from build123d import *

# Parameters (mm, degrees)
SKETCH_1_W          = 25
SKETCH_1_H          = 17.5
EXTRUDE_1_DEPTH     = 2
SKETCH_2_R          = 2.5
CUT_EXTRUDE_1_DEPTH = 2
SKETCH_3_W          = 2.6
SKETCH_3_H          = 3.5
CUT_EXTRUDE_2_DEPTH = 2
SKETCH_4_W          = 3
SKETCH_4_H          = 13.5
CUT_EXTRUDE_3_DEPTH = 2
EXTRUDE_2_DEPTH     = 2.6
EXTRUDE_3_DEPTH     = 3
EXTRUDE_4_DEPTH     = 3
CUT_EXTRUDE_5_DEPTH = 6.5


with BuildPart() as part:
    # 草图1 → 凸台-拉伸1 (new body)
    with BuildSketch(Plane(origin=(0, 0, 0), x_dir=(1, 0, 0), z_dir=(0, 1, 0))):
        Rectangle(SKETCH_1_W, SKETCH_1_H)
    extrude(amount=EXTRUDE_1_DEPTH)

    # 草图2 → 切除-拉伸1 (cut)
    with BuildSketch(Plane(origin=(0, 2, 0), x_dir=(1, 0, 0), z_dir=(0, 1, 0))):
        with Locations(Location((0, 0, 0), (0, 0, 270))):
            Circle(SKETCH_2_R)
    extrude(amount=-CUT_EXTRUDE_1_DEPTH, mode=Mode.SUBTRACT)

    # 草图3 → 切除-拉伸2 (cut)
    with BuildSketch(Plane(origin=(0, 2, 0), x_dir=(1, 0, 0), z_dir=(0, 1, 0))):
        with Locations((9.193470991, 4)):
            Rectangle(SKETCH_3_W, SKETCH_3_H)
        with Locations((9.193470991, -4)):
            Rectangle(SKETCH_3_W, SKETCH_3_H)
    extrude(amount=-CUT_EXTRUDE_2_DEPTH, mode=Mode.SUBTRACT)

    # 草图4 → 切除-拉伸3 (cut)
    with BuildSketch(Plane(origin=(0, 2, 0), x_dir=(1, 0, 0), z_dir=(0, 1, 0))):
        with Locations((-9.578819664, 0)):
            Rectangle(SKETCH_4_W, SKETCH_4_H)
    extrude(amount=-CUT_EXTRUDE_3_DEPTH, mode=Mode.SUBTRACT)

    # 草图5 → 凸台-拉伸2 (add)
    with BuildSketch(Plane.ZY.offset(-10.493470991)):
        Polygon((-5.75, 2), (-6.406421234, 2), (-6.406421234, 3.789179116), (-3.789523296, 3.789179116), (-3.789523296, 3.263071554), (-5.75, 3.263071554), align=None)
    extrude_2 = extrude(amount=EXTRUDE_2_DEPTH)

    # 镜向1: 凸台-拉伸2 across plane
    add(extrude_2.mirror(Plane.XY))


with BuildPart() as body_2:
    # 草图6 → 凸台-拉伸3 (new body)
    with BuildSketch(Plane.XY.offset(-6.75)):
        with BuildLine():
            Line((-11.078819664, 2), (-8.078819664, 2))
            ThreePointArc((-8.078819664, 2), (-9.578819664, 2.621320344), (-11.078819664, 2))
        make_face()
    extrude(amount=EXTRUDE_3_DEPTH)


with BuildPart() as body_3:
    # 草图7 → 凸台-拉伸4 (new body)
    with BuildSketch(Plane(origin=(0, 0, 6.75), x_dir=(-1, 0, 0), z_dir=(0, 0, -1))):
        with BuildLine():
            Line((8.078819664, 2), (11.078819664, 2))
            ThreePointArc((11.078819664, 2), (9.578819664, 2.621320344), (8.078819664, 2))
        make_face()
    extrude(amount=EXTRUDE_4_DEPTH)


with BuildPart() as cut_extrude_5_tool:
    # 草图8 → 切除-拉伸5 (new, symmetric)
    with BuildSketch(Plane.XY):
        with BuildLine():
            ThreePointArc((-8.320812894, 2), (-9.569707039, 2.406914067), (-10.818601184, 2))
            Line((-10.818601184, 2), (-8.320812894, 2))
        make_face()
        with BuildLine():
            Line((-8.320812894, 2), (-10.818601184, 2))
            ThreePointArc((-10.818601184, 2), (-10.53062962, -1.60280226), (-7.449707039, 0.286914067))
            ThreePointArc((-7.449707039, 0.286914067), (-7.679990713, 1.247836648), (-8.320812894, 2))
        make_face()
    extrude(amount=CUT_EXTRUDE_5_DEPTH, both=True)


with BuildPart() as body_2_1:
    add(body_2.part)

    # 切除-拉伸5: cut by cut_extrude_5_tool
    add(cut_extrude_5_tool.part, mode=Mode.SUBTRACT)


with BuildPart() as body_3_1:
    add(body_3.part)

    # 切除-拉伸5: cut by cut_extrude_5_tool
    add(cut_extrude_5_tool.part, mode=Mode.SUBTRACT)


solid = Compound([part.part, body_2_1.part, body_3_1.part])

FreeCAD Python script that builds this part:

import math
import FreeCAD as App
import Part
import Sketcher

V = App.Vector


def add_polygon(sketch, points):
    """Adds a closed chain of lines whose ends are joined by coincident constraints."""
    first, n = sketch.GeometryCount, len(points)
    for a, b in zip(points, points[1:] + points[:1]):
        sketch.addGeometry(Part.LineSegment(App.Vector(*a, 0), App.Vector(*b, 0)), False)
    for i in range(n):
        sketch.addConstraint(Sketcher.Constraint("Coincident", first + i, 2, first + (i + 1) % n, 1))

doc = App.newDocument("Part")
body = doc.addObject("PartDesign::Body", "Body")

# Sketch on XZ plane
sketch1 = body.newObject("Sketcher::SketchObject", "Sketch")
sketch1.AttachmentSupport = (doc.getObject("XZ_Plane"), [""])
sketch1.MapMode = "FlatFace"
add_polygon(sketch1, [(-12, -9), (-12, 9), (12, 9), (12, -9)])  # lines 0-3
sketch1.addConstraint([
    Sketcher.Constraint("Vertical", 0),
    Sketcher.Constraint("Horizontal", 1),
    Sketcher.Constraint("Vertical", 2),
    Sketcher.Constraint("Horizontal", 3),
    Sketcher.Constraint("Symmetric", 0, 2, 2, 2, -1, 1),
    Sketcher.Constraint("DistanceX", 1, 1, 1, 2, 25.0),
    Sketcher.Constraint("DistanceY", 0, 1, 0, 2, 17.5),
])
pad1 = body.newObject("PartDesign::Pad", "Pad")
pad1.Profile = sketch1
pad1.Length = 2
pad1.Reversed = True

# Sketch on XZ plane
sketch2 = body.newObject("Sketcher::SketchObject", "Sketch001")
sketch2.AttachmentSupport = (doc.getObject("XZ_Plane"), [""])
sketch2.MapMode = "FlatFace"
sketch2.AttachmentOffset = App.Placement(V(0, 0, -2), App.Rotation())
sketch2.addGeometry(Part.Circle(V(0, 0, 0), V(0, 0, 1), 2.5), False)
sketch2.addConstraint([
    Sketcher.Constraint("Coincident", 0, 3, -1, 1),
    Sketcher.Constraint("Diameter", 0, 5.0),
])
pocket1 = body.newObject("PartDesign::Pocket", "Pocket")
pocket1.Profile = sketch2
pocket1.Length = 2
pocket1.Reversed = True

# Sketch on XZ plane
sketch3 = body.newObject("Sketcher::SketchObject", "Sketch002")
sketch3.AttachmentSupport = (doc.getObject("XZ_Plane"), [""])
sketch3.MapMode = "FlatFace"
sketch3.AttachmentOffset = App.Placement(V(0, 0, -2), App.Rotation())
add_polygon(sketch3, [(7.9, -5.8), (7.9, -2.2), (10.5, -2.2), (10.5, -5.8)])  # lines 0-3
add_polygon(sketch3, [(7.9, 2.2), (7.9, 5.8), (10.5, 5.8), (10.5, 2.2)])  # lines 4-7
sketch3.addConstraint([
    Sketcher.Constraint("Vertical", 0),
    Sketcher.Constraint("Horizontal", 1),
    Sketcher.Constraint("Vertical", 2),
    Sketcher.Constraint("Horizontal", 3),
    Sketcher.Constraint("Vertical", 4),
    Sketcher.Constraint("Horizontal", 5),
    Sketcher.Constraint("Vertical", 6),
    Sketcher.Constraint("Horizontal", 7),
    Sketcher.Constraint("Symmetric", 3, 2, 4, 2, -1),
    Sketcher.Constraint("Symmetric", 1, 2, 6, 2, -1),
    Sketcher.Constraint("DistanceX", 1, 1, 1, 2, 2.6),
    Sketcher.Constraint("DistanceY", 0, 1, 0, 2, 3.5),
    Sketcher.Constraint("DistanceY", 0, 2, 4, 2, 8.0),
    Sketcher.Constraint("DistanceX", -1, 1, 0, 2, 7.893471),
])
pocket2 = body.newObject("PartDesign::Pocket", "Pocket001")
pocket2.Profile = sketch3
pocket2.Length = 2
pocket2.Reversed = True

# Sketch on XZ plane
sketch4 = body.newObject("Sketcher::SketchObject", "Sketch003")
sketch4.AttachmentSupport = (doc.getObject("XZ_Plane"), [""])
sketch4.MapMode = "FlatFace"
sketch4.AttachmentOffset = App.Placement(V(0, 0, -2), App.Rotation())
add_polygon(sketch4, [(-11.1, -6.8), (-11.1, 6.8), (-8.1, 6.8), (-8.1, -6.8)])  # lines 0-3
sketch4.addConstraint([
    Sketcher.Constraint("Vertical", 0),
    Sketcher.Constraint("Horizontal", 1),
    Sketcher.Constraint("Vertical", 2),
    Sketcher.Constraint("Horizontal", 3),
    Sketcher.Constraint("DistanceX", 1, 1, 1, 2, 3.0),
    Sketcher.Constraint("DistanceY", 0, 1, 0, 2, 13.5),
    Sketcher.Constraint("DistanceY", -1, 1, 0, 2, 6.75),
    Sketcher.Constraint("DistanceX", 0, 2, -1, 1, 11.07882),
])
pocket3 = body.newObject("PartDesign::Pocket", "Pocket002")
pocket3.Profile = sketch4
pocket3.Length = 2
pocket3.Reversed = True

# Sketch on YZ plane
sketch5 = body.newObject("Sketcher::SketchObject", "Sketch004")
sketch5.AttachmentSupport = (doc.getObject("YZ_Plane"), [""])
sketch5.MapMode = "FlatFace"
sketch5.AttachmentOffset = App.Placement(V(0, 0, 10.493471), App.Rotation())
add_polygon(sketch5, [(2, -6.4), (2, -5.8), (3.3, -5.8), (3.3, -3.8), (3.8, -3.8), (3.8, -6.4)])  # lines 0-5
sketch5.addConstraint([
    Sketcher.Constraint("Vertical", 0),
    Sketcher.Constraint("Horizontal", 1),
    Sketcher.Constraint("Vertical", 2),
    Sketcher.Constraint("Horizontal", 3),
    Sketcher.Constraint("Vertical", 4),
    Sketcher.Constraint("Horizontal", 5),
    Sketcher.Constraint("DistanceX", -1, 1, 0, 2, 2.0),
    Sketcher.Constraint("DistanceY", 0, 2, -1, 1, 5.75),
    Sketcher.Constraint("DistanceX", 1, 1, 1, 2, 1.263072),
    Sketcher.Constraint("DistanceX", 5, 2, 5, 1, 1.789179),
    Sketcher.Constraint("DistanceY", 0, 1, 0, 2, 0.656421),
    Sketcher.Constraint("DistanceY", 2, 1, 2, 2, 1.960477),
])
pad2 = body.newObject("PartDesign::Pad", "Pad001")
pad2.Profile = sketch5
pad2.Length = 2.6
pad2.Reversed = True
doc.recompute()

mirrored = body.newObject("PartDesign::Mirrored", "Mirrored")
mirrored.Originals = [pad2]
mirrored.MirrorPlane = (doc.getObject("XY_Plane"), [""])
body.Tip = mirrored
body2 = doc.addObject("PartDesign::Body", "Body001")

# Sketch on XY plane
sketch6 = body2.newObject("Sketcher::SketchObject", "Sketch005")
sketch6.AttachmentSupport = (doc.getObject("XY_Plane001"), [""])
sketch6.MapMode = "FlatFace"
sketch6.AttachmentOffset = App.Placement(V(0, 0, -6.75), App.Rotation())
sketch6.addGeometry([
    Part.LineSegment(V(-11.1, 2, 0), V(-8.1, 2, 0)),
    Part.ArcOfCircle(Part.Circle(V(-9.6, 0.5, 0), V(0, 0, 1), 2.1), math.radians(45), math.radians(135)),
], False)
sketch6.addConstraint([
    Sketcher.Constraint("Coincident", 0, 1, 1, 2),
    Sketcher.Constraint("Coincident", 1, 1, 0, 2),
    Sketcher.Constraint("Horizontal", 0),
    Sketcher.Constraint("DistanceX", 0, 1, 0, 2, 3.0),
    Sketcher.Constraint("DistanceY", -1, 1, 0, 1, 2.0),
    Sketcher.Constraint("DistanceY", -1, 1, 1, 3, 0.5),
    Sketcher.Constraint("DistanceX", 1, 3, -1, 1, 9.57882),
])
pad3 = body2.newObject("PartDesign::Pad", "Pad002")
pad3.Profile = sketch6
pad3.Length = 3
body3 = doc.addObject("PartDesign::Body", "Body002")

# Sketch on XY plane
sketch7 = body3.newObject("Sketcher::SketchObject", "Sketch006")
sketch7.AttachmentSupport = (doc.getObject("XY_Plane002"), [""])
sketch7.MapMode = "FlatFace"
sketch7.AttachmentOffset = App.Placement(V(0, 0, 6.75), App.Rotation())
sketch7.addGeometry([
    Part.LineSegment(V(-8.1, 2, 0), V(-11.1, 2, 0)),
    Part.ArcOfCircle(Part.Circle(V(-9.6, 0.5, 0), V(0, 0, 1), 2.1), math.radians(45), math.radians(135)),
], False)
sketch7.addConstraint([
    Sketcher.Constraint("Coincident", 0, 1, 1, 1),
    Sketcher.Constraint("Coincident", 1, 2, 0, 2),
    Sketcher.Constraint("Horizontal", 0),
    Sketcher.Constraint("DistanceX", 0, 2, 0, 1, 3.0),
    Sketcher.Constraint("DistanceY", -1, 1, 0, 1, 2.0),
    Sketcher.Constraint("DistanceY", -1, 1, 1, 3, 0.5),
    Sketcher.Constraint("DistanceX", 1, 3, -1, 1, 9.57882),
])
pad4 = body3.newObject("PartDesign::Pad", "Pad003")
pad4.Profile = sketch7
pad4.Length = 3
pad4.Reversed = True
body4 = doc.addObject("PartDesign::Body", "Body003")

# Sketch on XY plane
sketch8 = body4.newObject("Sketcher::SketchObject", "Sketch007")
sketch8.AttachmentSupport = (doc.getObject("XY_Plane003"), [""])
sketch8.MapMode = "FlatFace"
sketch8.addGeometry([
    Part.ArcOfCircle(Part.Circle(V(-9.6, 0.3, 0), V(0, 0, 1), 2.1), math.radians(54), math.radians(126)),
    Part.ArcOfCircle(Part.Circle(V(-9.6, 0.3, 0), V(0, 0, 1), 2.1), math.radians(126), math.radians(360)),
    Part.ArcOfCircle(Part.Circle(V(-9.6, 0.3, 0), V(0, 0, 1), 2.1), math.radians(0), math.radians(54)),
], False)
sketch8.addConstraint([
    Sketcher.Constraint("Tangent", 0, 2, 1, 1),
    Sketcher.Constraint("Tangent", 1, 2, 2, 1),
    Sketcher.Constraint("Tangent", 2, 2, 0, 1),
    Sketcher.Constraint("Horizontal", 2, 3, 1, 2),
    Sketcher.Constraint("Horizontal", 0, 2, 2, 2),
    Sketcher.Constraint("Radius", 0, 2.12),
    Sketcher.Constraint("DistanceY", -1, 1, 0, 2, 2.0),
    Sketcher.Constraint("DistanceX", 0, 2, -1, 1, 10.818601),
    Sketcher.Constraint("DistanceX", 0, 2, 2, 2, 2.497788),
])
pad5 = body4.newObject("PartDesign::Pad", "Pad004")
pad5.Profile = sketch8
pad5.Length = 13
pad5.Midplane = True
doc.recompute()

body5 = doc.addObject("PartDesign::Body", "Body004")
body5.BaseFeature = body4
boolean = body2.newObject("PartDesign::Boolean", "Boolean")
boolean.Type = "Cut"
boolean.addObjects([body5])
doc.recompute()

boolean2 = body3.newObject("PartDesign::Boolean", "Boolean001")
boolean2.Type = "Cut"
boolean2.addObjects([body4])

doc.recompute()
